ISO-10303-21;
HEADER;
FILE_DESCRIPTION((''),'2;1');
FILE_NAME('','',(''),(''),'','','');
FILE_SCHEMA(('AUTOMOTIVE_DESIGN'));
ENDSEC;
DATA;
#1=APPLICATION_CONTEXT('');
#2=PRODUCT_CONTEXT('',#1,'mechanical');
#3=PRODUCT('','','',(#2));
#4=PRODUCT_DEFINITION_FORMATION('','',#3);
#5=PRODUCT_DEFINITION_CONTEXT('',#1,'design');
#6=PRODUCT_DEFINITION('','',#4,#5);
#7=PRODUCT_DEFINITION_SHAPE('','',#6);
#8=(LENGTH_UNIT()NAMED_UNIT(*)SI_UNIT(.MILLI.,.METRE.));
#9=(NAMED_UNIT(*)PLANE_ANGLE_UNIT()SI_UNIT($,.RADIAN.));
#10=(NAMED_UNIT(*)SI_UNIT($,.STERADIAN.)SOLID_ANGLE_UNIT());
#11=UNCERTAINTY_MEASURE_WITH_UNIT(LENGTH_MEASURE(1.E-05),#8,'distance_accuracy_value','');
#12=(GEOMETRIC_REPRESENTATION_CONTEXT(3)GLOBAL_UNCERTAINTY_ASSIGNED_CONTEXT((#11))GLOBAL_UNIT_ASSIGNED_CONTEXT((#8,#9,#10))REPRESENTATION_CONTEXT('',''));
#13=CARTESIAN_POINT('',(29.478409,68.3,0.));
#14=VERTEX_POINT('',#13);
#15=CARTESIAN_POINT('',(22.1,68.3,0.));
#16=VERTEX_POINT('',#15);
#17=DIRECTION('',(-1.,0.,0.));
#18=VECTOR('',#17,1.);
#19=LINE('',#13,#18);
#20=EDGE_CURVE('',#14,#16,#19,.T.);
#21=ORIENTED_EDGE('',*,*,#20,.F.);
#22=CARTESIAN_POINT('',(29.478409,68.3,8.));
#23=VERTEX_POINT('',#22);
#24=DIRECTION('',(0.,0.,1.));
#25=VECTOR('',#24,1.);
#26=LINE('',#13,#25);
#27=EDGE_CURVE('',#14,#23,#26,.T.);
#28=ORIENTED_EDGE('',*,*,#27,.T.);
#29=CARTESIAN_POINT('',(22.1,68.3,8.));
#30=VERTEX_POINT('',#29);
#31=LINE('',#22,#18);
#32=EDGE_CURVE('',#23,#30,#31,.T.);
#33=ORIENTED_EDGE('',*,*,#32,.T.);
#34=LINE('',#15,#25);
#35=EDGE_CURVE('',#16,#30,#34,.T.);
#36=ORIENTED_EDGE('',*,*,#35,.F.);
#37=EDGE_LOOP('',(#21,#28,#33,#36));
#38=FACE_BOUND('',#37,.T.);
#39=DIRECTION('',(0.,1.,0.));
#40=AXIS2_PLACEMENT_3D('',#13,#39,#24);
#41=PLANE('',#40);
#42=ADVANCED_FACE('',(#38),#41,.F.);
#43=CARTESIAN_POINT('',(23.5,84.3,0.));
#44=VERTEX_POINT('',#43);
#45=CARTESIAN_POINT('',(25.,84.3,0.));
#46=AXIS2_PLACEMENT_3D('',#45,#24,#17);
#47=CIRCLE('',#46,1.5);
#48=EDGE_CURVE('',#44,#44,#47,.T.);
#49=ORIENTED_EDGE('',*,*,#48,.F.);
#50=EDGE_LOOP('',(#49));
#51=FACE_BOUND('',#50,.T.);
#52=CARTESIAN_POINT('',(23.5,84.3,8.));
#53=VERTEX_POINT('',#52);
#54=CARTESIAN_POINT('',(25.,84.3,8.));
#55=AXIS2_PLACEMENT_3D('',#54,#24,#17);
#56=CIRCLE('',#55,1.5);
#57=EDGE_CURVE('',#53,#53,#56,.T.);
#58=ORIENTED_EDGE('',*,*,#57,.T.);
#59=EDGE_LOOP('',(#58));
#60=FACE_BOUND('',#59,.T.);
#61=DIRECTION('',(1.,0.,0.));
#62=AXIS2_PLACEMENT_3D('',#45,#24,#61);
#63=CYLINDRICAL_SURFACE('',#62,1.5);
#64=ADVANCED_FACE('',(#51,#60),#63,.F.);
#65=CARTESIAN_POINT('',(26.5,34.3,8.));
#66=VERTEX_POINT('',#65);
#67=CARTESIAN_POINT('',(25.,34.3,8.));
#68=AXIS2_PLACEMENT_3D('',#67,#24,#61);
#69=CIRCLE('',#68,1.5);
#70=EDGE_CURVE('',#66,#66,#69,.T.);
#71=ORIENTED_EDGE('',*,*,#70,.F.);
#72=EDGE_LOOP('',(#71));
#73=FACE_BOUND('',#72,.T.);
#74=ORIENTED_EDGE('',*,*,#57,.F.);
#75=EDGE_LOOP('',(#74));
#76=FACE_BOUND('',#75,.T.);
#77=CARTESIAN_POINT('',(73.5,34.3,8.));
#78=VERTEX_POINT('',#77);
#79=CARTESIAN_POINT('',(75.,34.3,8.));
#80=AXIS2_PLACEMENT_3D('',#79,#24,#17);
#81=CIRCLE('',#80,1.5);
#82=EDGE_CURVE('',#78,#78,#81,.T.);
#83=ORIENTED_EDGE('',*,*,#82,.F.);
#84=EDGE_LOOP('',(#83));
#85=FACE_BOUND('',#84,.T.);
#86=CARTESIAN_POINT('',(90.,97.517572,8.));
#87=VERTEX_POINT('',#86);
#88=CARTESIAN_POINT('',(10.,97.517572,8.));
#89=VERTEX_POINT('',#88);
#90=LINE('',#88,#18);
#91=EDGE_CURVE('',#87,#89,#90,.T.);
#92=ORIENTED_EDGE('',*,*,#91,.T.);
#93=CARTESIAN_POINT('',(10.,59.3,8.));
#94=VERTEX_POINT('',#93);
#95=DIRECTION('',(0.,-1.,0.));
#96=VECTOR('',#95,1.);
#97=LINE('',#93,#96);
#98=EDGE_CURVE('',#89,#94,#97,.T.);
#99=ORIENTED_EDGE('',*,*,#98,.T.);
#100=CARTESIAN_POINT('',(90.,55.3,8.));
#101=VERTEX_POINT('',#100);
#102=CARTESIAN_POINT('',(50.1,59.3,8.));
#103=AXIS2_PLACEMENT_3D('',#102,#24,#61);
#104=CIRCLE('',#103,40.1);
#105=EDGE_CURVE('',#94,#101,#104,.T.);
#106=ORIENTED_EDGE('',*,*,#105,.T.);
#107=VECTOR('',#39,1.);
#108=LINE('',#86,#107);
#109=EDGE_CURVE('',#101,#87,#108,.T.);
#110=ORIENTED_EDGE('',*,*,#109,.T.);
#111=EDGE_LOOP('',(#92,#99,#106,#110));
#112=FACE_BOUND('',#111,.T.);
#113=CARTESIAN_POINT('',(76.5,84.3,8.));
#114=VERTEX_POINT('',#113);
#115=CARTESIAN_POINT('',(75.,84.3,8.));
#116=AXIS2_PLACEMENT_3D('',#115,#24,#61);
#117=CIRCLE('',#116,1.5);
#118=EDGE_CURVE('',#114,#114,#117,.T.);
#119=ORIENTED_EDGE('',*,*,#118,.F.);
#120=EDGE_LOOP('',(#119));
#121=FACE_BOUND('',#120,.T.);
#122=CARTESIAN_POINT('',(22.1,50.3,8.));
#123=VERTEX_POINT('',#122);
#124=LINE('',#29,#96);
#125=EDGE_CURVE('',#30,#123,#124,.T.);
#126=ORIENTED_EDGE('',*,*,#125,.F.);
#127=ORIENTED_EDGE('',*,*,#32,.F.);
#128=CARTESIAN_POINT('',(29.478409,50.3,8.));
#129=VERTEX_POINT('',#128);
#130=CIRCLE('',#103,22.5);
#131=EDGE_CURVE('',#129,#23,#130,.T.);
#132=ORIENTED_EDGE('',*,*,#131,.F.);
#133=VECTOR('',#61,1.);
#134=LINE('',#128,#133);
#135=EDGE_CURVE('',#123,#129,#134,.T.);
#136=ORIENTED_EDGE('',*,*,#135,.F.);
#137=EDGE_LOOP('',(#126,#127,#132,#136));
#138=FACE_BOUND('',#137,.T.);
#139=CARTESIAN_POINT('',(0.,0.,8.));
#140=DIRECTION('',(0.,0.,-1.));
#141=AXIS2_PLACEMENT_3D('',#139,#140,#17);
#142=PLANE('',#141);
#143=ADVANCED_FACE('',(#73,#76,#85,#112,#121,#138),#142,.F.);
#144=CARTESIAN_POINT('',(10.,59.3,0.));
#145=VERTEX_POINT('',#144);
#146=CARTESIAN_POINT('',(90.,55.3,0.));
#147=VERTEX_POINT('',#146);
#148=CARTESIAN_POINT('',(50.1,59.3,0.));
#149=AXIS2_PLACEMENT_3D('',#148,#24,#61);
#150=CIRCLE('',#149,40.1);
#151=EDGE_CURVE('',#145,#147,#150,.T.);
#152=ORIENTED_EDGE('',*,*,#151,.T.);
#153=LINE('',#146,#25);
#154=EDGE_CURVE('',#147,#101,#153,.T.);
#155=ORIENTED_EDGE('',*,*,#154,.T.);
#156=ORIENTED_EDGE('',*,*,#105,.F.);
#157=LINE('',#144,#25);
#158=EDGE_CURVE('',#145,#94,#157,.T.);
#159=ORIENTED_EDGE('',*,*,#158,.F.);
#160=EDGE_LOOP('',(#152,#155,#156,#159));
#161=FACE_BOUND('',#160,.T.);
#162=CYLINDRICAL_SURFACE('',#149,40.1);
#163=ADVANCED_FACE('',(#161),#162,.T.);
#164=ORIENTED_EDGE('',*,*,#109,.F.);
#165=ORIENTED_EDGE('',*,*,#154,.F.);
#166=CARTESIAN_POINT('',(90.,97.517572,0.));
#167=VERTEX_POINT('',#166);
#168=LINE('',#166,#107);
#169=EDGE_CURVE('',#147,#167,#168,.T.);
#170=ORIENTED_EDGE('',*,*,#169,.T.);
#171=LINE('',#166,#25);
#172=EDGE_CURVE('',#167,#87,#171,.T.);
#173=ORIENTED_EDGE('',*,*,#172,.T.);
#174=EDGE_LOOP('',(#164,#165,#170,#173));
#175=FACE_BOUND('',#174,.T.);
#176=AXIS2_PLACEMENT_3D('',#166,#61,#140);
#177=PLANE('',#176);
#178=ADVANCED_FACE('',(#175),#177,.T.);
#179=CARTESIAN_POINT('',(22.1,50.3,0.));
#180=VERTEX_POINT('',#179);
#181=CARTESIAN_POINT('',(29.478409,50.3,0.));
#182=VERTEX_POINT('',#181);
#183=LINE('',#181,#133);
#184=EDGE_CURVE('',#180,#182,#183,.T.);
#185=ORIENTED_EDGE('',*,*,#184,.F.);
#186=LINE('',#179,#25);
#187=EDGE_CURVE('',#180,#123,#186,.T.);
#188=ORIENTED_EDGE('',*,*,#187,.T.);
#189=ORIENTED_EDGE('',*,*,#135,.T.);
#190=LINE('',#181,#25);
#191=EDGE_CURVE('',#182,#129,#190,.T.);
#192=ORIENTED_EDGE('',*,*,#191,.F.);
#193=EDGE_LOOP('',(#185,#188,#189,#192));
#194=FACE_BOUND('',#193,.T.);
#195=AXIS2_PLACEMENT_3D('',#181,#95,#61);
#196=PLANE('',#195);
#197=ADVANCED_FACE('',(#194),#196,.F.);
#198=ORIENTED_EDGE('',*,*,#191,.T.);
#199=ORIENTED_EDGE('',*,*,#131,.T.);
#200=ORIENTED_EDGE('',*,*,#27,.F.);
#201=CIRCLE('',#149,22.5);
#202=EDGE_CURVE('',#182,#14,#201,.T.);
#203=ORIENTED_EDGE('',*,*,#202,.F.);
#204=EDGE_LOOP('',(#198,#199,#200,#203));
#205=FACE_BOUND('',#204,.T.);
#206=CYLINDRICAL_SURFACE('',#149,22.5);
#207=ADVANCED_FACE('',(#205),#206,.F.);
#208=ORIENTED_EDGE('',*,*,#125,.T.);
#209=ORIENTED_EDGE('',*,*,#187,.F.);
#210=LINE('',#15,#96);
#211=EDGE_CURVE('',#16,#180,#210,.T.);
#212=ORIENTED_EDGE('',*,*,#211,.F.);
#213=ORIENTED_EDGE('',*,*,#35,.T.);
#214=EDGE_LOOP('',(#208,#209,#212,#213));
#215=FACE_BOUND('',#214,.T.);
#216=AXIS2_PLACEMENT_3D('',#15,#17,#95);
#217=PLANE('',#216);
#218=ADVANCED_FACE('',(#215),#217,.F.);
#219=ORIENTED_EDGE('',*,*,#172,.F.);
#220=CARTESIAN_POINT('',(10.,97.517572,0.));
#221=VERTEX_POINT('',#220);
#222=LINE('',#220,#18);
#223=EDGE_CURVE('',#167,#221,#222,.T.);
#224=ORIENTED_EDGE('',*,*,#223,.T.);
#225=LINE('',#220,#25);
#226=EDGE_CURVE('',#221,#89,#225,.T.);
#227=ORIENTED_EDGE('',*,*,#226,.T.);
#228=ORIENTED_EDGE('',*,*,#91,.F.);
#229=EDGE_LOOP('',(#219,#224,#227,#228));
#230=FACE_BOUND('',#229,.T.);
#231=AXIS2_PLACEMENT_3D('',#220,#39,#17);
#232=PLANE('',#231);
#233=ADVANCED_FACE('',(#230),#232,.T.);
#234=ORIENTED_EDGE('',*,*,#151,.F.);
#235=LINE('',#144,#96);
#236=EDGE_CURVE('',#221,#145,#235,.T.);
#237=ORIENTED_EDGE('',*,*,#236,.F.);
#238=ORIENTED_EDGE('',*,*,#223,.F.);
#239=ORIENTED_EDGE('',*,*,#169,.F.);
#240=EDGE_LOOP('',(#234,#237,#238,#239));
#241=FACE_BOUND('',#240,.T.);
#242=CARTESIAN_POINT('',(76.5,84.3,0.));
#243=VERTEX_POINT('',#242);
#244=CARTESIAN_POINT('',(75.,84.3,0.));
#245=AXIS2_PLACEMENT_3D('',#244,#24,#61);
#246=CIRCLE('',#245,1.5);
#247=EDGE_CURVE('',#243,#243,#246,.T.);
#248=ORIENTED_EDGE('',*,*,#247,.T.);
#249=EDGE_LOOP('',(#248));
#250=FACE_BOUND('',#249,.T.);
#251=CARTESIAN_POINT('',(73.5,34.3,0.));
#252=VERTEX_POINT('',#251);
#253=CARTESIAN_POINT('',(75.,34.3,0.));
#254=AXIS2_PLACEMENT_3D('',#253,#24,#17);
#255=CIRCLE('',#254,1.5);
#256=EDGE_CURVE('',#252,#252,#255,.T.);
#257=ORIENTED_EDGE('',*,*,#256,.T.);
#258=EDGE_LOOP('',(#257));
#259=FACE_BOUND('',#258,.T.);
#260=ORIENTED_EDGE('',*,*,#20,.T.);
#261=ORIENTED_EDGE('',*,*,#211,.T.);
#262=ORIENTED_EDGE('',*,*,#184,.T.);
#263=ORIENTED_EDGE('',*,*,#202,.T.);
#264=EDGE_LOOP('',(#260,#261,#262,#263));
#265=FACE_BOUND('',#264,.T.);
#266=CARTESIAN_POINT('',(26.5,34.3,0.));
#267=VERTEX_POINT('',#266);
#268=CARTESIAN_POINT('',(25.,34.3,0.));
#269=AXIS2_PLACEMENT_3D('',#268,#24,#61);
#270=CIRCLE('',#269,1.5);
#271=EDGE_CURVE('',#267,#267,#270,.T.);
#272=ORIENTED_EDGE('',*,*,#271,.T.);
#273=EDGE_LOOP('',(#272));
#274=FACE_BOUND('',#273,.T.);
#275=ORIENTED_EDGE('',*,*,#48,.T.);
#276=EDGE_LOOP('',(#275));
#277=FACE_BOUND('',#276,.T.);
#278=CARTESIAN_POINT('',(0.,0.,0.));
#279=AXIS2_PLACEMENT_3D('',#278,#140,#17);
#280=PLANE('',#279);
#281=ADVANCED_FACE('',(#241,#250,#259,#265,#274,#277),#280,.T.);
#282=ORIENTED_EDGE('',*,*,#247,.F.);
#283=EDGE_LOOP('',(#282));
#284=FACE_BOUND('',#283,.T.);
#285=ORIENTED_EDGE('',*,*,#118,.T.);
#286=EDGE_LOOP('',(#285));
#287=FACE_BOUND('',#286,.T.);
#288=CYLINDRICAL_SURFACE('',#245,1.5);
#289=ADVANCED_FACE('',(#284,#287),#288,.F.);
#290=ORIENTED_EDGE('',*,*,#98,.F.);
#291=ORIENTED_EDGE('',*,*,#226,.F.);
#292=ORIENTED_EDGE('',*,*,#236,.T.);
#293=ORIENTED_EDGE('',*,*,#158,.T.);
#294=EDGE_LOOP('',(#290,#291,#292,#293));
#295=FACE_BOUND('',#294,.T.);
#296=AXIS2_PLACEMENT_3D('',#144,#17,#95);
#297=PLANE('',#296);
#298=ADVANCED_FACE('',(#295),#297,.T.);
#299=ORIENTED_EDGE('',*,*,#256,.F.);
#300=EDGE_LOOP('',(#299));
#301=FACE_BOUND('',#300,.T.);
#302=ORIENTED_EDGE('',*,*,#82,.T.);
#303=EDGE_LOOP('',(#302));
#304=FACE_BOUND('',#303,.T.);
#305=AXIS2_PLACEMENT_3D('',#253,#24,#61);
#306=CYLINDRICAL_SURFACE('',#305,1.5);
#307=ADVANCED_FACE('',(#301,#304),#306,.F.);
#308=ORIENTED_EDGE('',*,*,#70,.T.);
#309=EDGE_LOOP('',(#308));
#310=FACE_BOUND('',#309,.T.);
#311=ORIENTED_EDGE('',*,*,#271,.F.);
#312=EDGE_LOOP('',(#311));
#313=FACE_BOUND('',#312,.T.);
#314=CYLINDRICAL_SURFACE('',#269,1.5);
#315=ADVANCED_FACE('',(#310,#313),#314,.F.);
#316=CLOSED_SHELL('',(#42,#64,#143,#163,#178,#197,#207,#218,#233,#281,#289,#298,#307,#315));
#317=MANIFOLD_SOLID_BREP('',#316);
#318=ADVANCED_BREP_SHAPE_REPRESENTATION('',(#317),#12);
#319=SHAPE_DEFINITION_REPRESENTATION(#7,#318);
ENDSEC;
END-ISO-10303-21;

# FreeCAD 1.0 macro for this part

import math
import FreeCAD as App
import Part
import Sketcher

V = App.Vector
Q = App.Units.Quantity


def add_polygon(sketch, points):
    """Adds a closed chain of lines whose ends are joined by coincident constraints."""
    first, n = sketch.GeometryCount, len(points)
    for a, b in zip(points, points[1:] + points[:1]):
        sketch.addGeometry(Part.LineSegment(App.Vector(*a, 0), App.Vector(*b, 0)), False)
    for i in range(n):
        sketch.addConstraint(Sketcher.Constraint("Coincident", first + i, 2, first + (i + 1) % n, 1))

doc = App.newDocument("Part")
params = doc.addObject("Spreadsheet::Sheet", "Params")
for row, (alias, value) in enumerate([
    ("sketch1_width", "100 mm"),
    ("pad1_length", "8 mm"),
    ("sketch2_radius", "40.1 mm"),
    ("sketch2_width", "80 mm"),
    ("sketch2_width2", "130.33 mm"),
    ("sketch3_diameter", "3 mm"),
    ("sketch3_radius", "22.5 mm"),
    ("sketch3_height", "18 mm"),
], start=1):
    params.set(f"A{row}", alias)
    params.set(f"B{row}", "=" + value)
    params.setAlias(f"B{row}", alias)

body = doc.addObject("PartDesign::Body", "Body")

# Sketch on XY plane
sketch1 = body.newObject("Sketcher::SketchObject", "Sketch")
sketch1.AttachmentSupport = (doc.getObject("XY_Plane"), [""])
sketch1.MapMode = "FlatFace"
add_polygon(sketch1, [(0, 100), (0, 0), (100, 0), (100, 100)])  # lines 0-3
sketch1.addConstraint(Sketcher.Constraint("Vertical", 0))
sketch1.addConstraint(Sketcher.Constraint("Horizontal", 1))
sketch1.addConstraint(Sketcher.Constraint("Vertical", 2))
sketch1.addConstraint(Sketcher.Constraint("Horizontal", 3))
sketch1.addConstraint(Sketcher.Constraint("Coincident", 0, 2, -1, 1))
sketch1.addConstraint(Sketcher.Constraint("Equal", 3, 0))
sketch1.addConstraint(Sketcher.Constraint("DistanceX", 1, 1, 1, 2, Q("100 mm")))
sketch1.setExpression("Constraints[10]", "Params.sketch1_width")
pad1 = body.newObject("PartDesign::Pad", "Pad")
pad1.Profile = sketch1
pad1.setExpression("Length", "Params.pad1_length")

# Sketch on XY plane
sketch2 = body.newObject("Sketcher::SketchObject", "Sketch001")
sketch2.AttachmentSupport = (doc.getObject("XY_Plane"), [""])
sketch2.MapMode = "FlatFace"
sketch2.AttachmentOffset = App.Placement(V(0, 0, 8), App.Rotation())
add_polygon(sketch2, [(-15, 115), (-15, -15), (115, -15), (115, 115)])  # lines 0-3
sketch2.addGeometry(Part.LineSegment(V(10, 98, 0), V(90, 98, 0)), False)  # 4
sketch2.addGeometry(Part.LineSegment(V(90, 98, 0), V(90, 55, 0)), False)  # 5
sketch2.addGeometry(Part.ArcOfCircle(Part.Circle(V(50, 59, 0), V(0, 0, 1), 40), math.radians(180), math.radians(354)), False)  # 6
sketch2.addGeometry(Part.LineSegment(V(10, 59, 0), V(10, 98, 0)), False)  # 7
sketch2.addConstraint(Sketcher.Constraint("Coincident", 4, 2, 5, 1))
sketch2.addConstraint(Sketcher.Constraint("Coincident", 5, 2, 6, 2))
sketch2.addConstraint(Sketcher.Constraint("Tangent", 6, 1, 7, 1))
sketch2.addConstraint(Sketcher.Constraint("Coincident", 7, 2, 4, 1))
sketch2.addConstraint(Sketcher.Constraint("Vertical", 0))
sketch2.addConstraint(Sketcher.Constraint("Horizontal", 1))
sketch2.addConstraint(Sketcher.Constraint("Vertical", 2))
sketch2.addConstraint(Sketcher.Constraint("Horizontal", 3))
sketch2.addConstraint(Sketcher.Constraint("Horizontal", 4))
sketch2.addConstraint(Sketcher.Constraint("Vertical", 5))
sketch2.addConstraint(Sketcher.Constraint("Vertical", 7))
sketch2.addConstraint(Sketcher.Constraint("Equal", 3, 0))
sketch2.addConstraint(Sketcher.Constraint("Radius", 6, Q("40.1 mm")))
sketch2.addConstraint(Sketcher.Constraint("DistanceX", 4, 1, 4, 2, Q("80 mm")))
sketch2.addConstraint(Sketcher.Constraint("DistanceX", -1, 1, 4, 2, Q("90 mm")))
sketch2.addConstraint(Sketcher.Constraint("DistanceX", 1, 1, 1, 2, Q("130.33 mm")))
sketch2.addConstraint(Sketcher.Constraint("DistanceY", -1, 1, 6, 3, Q("59.3 mm")))
sketch2.addConstraint(Sketcher.Constraint("DistanceX", 0, 2, -1, 1, Q("15.165 mm")))
sketch2.addConstraint(Sketcher.Constraint("DistanceY", 0, 2, -1, 1, Q("15.165 mm")))
sketch2.addConstraint(Sketcher.Constraint("DistanceY", 5, 2, 5, 1, Q("42.217572 mm")))
sketch2.setExpression("Constraints[16]", "Params.sketch2_radius")
sketch2.setExpression("Constraints[17]", "Params.sketch2_width")
sketch2.setExpression("Constraints[19]", "Params.sketch2_width2")
pocket1 = body.newObject("PartDesign::Pocket", "Pocket")
pocket1.Profile = sketch2
pocket1.Type = "ThroughAll"

# Sketch on XY plane
sketch3 = body.newObject("Sketcher::SketchObject", "Sketch002")
sketch3.AttachmentSupport = (doc.getObject("XY_Plane"), [""])
sketch3.MapMode = "FlatFace"
sketch3.AttachmentOffset = App.Placement(V(0, 0, 8), App.Rotation())
sketch3.addGeometry(Part.Circle(V(75, 84.3, 0), V(0, 0, 1), 1.5), False)
sketch3.addGeometry(Part.Circle(V(75, 34.3, 0), V(0, 0, 1), 1.5), False)
sketch3.addGeometry(Part.Circle(V(25, 34.3, 0), V(0, 0, 1), 1.5), False)
sketch3.addGeometry(Part.Circle(V(25, 84.3, 0), V(0, 0, 1), 1.5), False)
sketch3.addGeometry(Part.LineSegment(V(29.5, 68.3, 0), V(22.1, 68.3, 0)), False)
sketch3.addGeometry(Part.LineSegment(V(22.1, 68.3, 0), V(22.1, 50.3, 0)), False)
sketch3.addGeometry(Part.LineSegment(V(22.1, 50.3, 0), V(29.5, 50.3, 0)), False)
sketch3.addGeometry(Part.ArcOfCircle(Part.Circle(V(50.1, 59.3, 0), V(0, 0, 1), 22.5), math.radians(-156), math.radians(156)), False)
sketch3.addConstraint(Sketcher.Constraint("Coincident", 4, 2, 5, 1))
sketch3.addConstraint(Sketcher.Constraint("Coincident", 5, 2, 6, 1))
sketch3.addConstraint(Sketcher.Constraint("Coincident", 6, 2, 7, 1))
sketch3.addConstraint(Sketcher.Constraint("Coincident", 7, 2, 4, 1))
sketch3.addConstraint(Sketcher.Constraint("Horizontal", 4))
sketch3.addConstraint(Sketcher.Constraint("Vertical", 5))
sketch3.addConstraint(Sketcher.Constraint("Horizontal", 6))
sketch3.addConstraint(Sketcher.Constraint("Equal", 0, 1))
sketch3.addConstraint(Sketcher.Constraint("Equal", 1, 2))
sketch3.addConstraint(Sketcher.Constraint("Equal", 2, 3))
sketch3.addConstraint(Sketcher.Constraint("Horizontal", 1, 3, 2, 3))
sketch3.addConstraint(Sketcher.Constraint("Horizontal", 0, 3, 3, 3))
sketch3.addConstraint(Sketcher.Constraint("Vertical", 0, 3, 1, 3))
sketch3.addConstraint(Sketcher.Constraint("Vertical", 2, 3, 3, 3))
sketch3.addConstraint(Sketcher.Constraint("Vertical", 6, 2, 7, 2))
sketch3.addConstraint(Sketcher.Constraint("Diameter", 0, Q("3 mm")))
sketch3.addConstraint(Sketcher.Constraint("Radius", 7, Q("22.5 mm")))
sketch3.addConstraint(Sketcher.Constraint("DistanceY", 5, 2, 5, 1, Q("18 mm")))
sketch3.addConstraint(Sketcher.Constraint("DistanceX", -1, 1, 0, 3, Q("75 mm")))
sketch3.addConstraint(Sketcher.Constraint("DistanceX", -1, 1, 2, 3, Q("25 mm")))
sketch3.addConstraint(Sketcher.Constraint("DistanceY", 1, 3, 0, 3, Q("50 mm")))
sketch3.addConstraint(Sketcher.Constraint("DistanceY", 7, 3, 0, 3, Q("25 mm")))
sketch3.addConstraint(Sketcher.Constraint("DistanceX", 4, 2, 7, 3, Q("28 mm")))
sketch3.addConstraint(Sketcher.Constraint("DistanceY", -1, 1, 0, 3, Q("84.3 mm")))
sketch3.addConstraint(Sketcher.Constraint("DistanceX", -1, 1, 7, 3, Q("50.1 mm")))
sketch3.setExpression("Constraints[15]", "Params.sketch3_diameter")
sketch3.setExpression("Constraints[16]", "Params.sketch3_radius")
sketch3.setExpression("Constraints[17]", "Params.sketch3_height")
pocket2 = body.newObject("PartDesign::Pocket", "Pocket001")
pocket2.Profile = sketch3
pocket2.Type = "ThroughAll"

doc.recompute()
